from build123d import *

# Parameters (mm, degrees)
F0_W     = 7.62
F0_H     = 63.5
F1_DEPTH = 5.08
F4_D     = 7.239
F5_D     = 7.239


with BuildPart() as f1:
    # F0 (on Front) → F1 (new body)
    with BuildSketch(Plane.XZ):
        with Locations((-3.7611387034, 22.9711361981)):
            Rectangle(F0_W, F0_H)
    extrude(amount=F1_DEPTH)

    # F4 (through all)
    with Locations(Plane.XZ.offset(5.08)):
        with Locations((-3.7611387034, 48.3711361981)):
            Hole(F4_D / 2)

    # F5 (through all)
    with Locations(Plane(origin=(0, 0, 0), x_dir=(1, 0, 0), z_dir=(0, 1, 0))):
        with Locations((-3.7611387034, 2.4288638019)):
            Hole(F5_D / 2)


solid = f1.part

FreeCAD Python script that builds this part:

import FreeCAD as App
import Part
import Sketcher
Q = App.Units.Quantity


def add_polygon(sketch, points):
    """Adds a closed chain of lines whose ends are joined by coincident constraints."""
    first, n = sketch.GeometryCount, len(points)
    for a, b in zip(points, points[1:] + points[:1]):
        sketch.addGeometry(Part.LineSegment(App.Vector(*a, 0), App.Vector(*b, 0)), False)
    for i in range(n):
        sketch.addConstraint(Sketcher.Constraint("Coincident", first + i, 2, first + (i + 1) % n, 1))

doc = App.newDocument("Part")
body = doc.addObject("PartDesign::Body", "Body")

# Sketch on XZ plane
sketch1 = body.newObject("Sketcher::SketchObject", "Sketch")
sketch1.AttachmentSupport = (doc.getObject("XZ_Plane"), [""])
sketch1.MapMode = "FlatFace"
add_polygon(sketch1, [(-8, 55), (-8, -9), (0, -9), (0, 55)])  # lines 0-3
sketch1.addConstraint(Sketcher.Constraint("Vertical", 0))
sketch1.addConstraint(Sketcher.Constraint("Horizontal", 1))
sketch1.addConstraint(Sketcher.Constraint("Vertical", 2))
sketch1.addConstraint(Sketcher.Constraint("Horizontal", 3))
sketch1.addConstraint(Sketcher.Constraint("DistanceX", 1, 1, 1, 2, Q("0.3 in")))
sketch1.addConstraint(Sketcher.Constraint("DistanceY", 0, 2, 0, 1, Q("2.5 in")))
sketch1.addConstraint(Sketcher.Constraint("DistanceX", 0, 2, -1, 1, 7.571139))
sketch1.addConstraint(Sketcher.Constraint("DistanceY", 0, 2, -1, 1, 8.778864))
pad1 = body.newObject("PartDesign::Pad", "Pad")
pad1.Profile = sketch1
pad1.Length = Q("0.2 in")

# Sketch on XZ plane
sketch2 = body.newObject("Sketcher::SketchObject", "Sketch001")
sketch2.AttachmentSupport = (doc.getObject("XZ_Plane"), [""])
sketch2.MapMode = "FlatFace"
sketch2.AttachmentOffset = App.Placement(App.Vector(0, 0, 0.2 * 25.4), App.Rotation())
sketch2.addGeometry(Part.Circle(App.Vector(-3.8, 48.4, 0), App.Vector(0, 0, 1), 3.6), False)
sketch2.addConstraint(Sketcher.Constraint("Diameter", 0, Q("0.285 in")))
sketch2.addConstraint(Sketcher.Constraint("DistanceX", 0, 3, -1, 1, 3.761139))
sketch2.addConstraint(Sketcher.Constraint("DistanceY", -1, 1, 0, 3, 48.371136))
doc.recompute()
hole = body.newObject("PartDesign::Hole", "Hole")
hole.Profile = sketch2
hole.ThreadType = "None"
hole.Diameter = Q("0.285 in")
hole.DepthType = "ThroughAll"

# Sketch on XZ plane
sketch3 = body.newObject("Sketcher::SketchObject", "Sketch002")
sketch3.AttachmentSupport = (doc.getObject("XZ_Plane"), [""])
sketch3.MapMode = "FlatFace"
sketch3.addGeometry(Part.Circle(App.Vector(-3.8, -2.4, 0), App.Vector(0, 0, 1), 3.6), False)
sketch3.addConstraint(Sketcher.Constraint("Diameter", 0, Q("0.285 in")))
sketch3.addConstraint(Sketcher.Constraint("DistanceX", 0, 3, -1, 1, 3.761139))
sketch3.addConstraint(Sketcher.Constraint("DistanceY", 0, 3, -1, 1, 2.428864))
doc.recompute()
hole2 = body.newObject("PartDesign::Hole", "Hole001")
hole2.Profile = sketch3
hole2.ThreadType = "None"
hole2.Diameter = Q("0.285 in")
hole2.DepthType = "ThroughAll"
hole2.Reversed = True

doc.recompute()
